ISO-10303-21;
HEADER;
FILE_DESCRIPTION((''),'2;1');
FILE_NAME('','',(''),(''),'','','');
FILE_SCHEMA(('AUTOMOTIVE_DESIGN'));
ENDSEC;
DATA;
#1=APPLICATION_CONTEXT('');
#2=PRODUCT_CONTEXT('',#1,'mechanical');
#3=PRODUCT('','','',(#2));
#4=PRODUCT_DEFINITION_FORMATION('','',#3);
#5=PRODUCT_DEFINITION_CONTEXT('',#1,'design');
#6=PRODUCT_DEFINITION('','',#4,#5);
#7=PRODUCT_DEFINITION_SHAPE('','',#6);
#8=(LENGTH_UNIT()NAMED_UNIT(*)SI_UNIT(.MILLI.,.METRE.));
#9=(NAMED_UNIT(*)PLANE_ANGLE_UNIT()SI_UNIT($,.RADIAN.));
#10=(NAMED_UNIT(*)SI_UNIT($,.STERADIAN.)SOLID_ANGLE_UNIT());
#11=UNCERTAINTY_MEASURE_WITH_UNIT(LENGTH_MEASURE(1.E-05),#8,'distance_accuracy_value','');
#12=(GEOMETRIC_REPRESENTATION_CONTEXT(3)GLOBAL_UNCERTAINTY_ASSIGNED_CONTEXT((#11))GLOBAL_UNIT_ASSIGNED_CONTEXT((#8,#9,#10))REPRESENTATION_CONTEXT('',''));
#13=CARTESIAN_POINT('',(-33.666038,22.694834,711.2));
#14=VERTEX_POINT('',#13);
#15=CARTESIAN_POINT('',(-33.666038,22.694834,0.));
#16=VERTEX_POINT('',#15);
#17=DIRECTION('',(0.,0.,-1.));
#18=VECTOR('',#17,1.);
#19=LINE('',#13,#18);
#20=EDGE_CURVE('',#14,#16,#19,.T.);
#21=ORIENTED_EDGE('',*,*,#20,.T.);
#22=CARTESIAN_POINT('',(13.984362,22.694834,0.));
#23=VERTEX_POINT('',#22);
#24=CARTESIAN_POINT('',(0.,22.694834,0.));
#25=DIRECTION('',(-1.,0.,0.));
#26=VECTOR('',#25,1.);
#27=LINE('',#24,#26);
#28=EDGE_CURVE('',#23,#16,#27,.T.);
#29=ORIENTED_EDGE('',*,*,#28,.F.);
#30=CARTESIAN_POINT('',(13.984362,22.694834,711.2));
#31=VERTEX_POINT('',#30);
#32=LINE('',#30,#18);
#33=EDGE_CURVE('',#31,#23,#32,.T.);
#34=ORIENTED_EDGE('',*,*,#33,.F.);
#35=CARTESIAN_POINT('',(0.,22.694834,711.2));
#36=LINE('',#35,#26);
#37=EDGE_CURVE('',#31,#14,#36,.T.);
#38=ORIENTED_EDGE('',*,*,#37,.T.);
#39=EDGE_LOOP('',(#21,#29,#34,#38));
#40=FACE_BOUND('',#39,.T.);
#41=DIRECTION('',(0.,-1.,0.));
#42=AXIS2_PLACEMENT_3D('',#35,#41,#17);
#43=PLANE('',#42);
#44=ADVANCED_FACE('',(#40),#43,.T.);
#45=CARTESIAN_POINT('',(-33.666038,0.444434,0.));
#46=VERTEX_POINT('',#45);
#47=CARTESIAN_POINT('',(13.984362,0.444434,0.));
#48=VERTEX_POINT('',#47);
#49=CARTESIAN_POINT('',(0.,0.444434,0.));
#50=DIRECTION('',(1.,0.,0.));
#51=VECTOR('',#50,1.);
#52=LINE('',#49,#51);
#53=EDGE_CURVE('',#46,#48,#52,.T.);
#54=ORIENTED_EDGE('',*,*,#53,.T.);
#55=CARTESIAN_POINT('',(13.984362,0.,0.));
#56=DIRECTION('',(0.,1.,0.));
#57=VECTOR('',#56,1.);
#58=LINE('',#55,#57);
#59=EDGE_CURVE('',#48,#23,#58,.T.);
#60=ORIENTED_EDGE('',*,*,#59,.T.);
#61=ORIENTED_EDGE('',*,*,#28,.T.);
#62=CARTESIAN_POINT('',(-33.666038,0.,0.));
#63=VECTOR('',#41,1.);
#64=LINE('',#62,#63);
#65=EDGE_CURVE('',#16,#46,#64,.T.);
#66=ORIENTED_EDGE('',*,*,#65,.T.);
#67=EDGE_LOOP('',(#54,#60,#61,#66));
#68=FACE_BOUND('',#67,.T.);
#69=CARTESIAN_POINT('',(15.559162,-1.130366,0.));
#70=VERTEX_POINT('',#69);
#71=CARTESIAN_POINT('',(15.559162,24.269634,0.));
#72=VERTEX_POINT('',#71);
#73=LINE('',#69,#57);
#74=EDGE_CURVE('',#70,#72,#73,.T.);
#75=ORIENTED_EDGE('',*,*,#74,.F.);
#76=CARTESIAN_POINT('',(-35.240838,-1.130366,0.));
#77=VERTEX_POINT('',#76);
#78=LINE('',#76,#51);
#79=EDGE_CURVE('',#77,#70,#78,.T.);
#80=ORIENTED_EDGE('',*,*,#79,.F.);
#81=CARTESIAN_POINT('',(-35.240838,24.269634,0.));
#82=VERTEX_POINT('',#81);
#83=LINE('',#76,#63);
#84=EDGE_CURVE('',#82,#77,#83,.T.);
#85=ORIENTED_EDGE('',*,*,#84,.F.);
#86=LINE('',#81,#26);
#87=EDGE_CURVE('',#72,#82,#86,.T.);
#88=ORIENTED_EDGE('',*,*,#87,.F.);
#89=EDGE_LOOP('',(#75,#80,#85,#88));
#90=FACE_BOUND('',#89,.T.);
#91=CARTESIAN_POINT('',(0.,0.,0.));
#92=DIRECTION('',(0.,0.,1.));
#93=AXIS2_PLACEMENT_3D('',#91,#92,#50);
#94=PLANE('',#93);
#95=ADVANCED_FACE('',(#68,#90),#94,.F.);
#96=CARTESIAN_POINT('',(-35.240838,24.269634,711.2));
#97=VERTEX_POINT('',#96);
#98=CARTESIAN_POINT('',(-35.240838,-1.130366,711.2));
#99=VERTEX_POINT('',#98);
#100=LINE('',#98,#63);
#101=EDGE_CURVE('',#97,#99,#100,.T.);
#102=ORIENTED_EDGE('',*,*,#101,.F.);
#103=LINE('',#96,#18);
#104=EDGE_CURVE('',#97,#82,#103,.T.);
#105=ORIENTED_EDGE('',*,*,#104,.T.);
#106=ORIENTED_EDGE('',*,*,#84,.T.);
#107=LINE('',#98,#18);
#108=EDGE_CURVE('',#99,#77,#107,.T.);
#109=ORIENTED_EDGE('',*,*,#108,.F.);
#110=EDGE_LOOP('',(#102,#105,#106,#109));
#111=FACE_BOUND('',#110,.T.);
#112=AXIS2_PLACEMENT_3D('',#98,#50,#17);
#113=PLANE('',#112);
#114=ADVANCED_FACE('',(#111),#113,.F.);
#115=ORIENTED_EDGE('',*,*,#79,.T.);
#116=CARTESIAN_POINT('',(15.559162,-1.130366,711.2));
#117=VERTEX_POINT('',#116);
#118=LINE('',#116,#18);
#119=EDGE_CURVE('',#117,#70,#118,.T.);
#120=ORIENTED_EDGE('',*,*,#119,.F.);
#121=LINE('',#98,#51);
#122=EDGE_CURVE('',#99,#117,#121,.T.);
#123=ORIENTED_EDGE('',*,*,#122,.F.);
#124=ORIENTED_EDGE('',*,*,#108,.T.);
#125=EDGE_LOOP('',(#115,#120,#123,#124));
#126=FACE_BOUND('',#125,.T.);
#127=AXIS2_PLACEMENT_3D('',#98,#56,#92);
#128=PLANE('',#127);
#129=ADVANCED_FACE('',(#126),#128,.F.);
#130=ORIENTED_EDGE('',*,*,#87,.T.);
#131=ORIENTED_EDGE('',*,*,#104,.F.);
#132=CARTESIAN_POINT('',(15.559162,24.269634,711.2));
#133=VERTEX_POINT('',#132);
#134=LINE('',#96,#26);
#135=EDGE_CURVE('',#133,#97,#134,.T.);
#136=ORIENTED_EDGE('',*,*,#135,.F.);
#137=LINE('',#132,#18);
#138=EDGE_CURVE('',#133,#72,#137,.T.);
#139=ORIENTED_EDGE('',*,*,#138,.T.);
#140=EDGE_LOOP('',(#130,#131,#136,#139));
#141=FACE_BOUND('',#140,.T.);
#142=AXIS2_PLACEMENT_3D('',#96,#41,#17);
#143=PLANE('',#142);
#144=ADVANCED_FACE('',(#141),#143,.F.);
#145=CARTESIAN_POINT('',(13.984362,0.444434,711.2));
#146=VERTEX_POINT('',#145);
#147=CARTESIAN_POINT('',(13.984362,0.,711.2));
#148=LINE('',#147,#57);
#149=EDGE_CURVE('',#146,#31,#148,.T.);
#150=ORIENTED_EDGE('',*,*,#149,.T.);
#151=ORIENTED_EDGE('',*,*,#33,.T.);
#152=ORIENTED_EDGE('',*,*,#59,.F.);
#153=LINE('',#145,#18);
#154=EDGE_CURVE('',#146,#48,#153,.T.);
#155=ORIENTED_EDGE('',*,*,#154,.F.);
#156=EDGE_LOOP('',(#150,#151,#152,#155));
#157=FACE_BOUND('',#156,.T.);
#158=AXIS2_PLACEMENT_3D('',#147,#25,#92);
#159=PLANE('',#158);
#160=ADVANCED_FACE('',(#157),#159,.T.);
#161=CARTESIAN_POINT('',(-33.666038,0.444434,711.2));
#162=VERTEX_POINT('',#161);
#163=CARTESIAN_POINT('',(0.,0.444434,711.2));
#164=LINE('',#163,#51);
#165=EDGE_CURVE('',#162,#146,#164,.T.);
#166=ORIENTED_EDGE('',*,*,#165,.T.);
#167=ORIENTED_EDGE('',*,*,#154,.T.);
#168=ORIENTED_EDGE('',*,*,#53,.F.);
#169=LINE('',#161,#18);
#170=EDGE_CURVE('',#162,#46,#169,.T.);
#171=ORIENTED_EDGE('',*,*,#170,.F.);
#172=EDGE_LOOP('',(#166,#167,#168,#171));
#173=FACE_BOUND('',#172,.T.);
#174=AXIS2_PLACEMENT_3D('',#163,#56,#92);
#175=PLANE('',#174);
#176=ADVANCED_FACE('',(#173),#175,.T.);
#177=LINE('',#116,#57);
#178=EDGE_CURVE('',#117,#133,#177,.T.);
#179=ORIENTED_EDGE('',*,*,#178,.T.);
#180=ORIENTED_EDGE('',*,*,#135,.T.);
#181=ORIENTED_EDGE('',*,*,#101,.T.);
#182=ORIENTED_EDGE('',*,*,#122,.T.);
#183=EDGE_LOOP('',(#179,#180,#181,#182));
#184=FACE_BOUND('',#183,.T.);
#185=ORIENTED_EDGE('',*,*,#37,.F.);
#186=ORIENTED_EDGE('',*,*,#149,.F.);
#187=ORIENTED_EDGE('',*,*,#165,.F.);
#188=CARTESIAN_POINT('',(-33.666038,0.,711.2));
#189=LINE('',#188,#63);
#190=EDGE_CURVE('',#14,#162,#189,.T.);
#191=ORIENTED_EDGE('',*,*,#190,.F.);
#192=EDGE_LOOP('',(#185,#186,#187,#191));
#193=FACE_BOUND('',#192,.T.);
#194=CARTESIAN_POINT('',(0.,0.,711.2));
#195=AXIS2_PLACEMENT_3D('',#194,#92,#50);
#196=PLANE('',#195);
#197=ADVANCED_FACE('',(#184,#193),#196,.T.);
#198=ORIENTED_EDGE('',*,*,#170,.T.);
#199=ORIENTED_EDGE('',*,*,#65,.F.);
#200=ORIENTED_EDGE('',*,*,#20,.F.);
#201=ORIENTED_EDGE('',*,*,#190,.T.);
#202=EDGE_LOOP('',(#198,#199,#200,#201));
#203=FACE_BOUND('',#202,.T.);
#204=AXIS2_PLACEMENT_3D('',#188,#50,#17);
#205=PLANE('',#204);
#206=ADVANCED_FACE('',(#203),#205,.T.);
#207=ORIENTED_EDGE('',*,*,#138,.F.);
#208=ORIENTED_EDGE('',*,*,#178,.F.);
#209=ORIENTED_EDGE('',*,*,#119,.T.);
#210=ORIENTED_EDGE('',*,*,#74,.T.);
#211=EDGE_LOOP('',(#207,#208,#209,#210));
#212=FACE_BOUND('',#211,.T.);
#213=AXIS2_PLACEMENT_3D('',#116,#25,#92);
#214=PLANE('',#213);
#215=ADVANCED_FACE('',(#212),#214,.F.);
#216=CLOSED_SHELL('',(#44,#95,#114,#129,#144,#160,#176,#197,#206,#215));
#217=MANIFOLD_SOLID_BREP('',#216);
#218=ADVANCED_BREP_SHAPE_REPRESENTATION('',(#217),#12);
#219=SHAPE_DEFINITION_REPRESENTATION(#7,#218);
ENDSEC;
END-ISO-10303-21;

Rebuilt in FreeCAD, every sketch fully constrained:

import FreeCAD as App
import Part
import Sketcher
Q = App.Units.Quantity


def add_polygon(sketch, points):
    """Adds a closed chain of lines whose ends are joined by coincident constraints."""
    first, n = sketch.GeometryCount, len(points)
    for a, b in zip(points, points[1:] + points[:1]):
        sketch.addGeometry(Part.LineSegment(App.Vector(*a, 0), App.Vector(*b, 0)), False)
    for i in range(n):
        sketch.addConstraint(Sketcher.Constraint("Coincident", first + i, 2, first + (i + 1) % n, 1))

doc = App.newDocument("Part")
params = doc.addObject("Spreadsheet::Sheet", "Params")
for row, (alias, value) in enumerate([
    ("sketch1_width", "2 in"),
    ("sketch1_height", "1 in"),
    ("sketch1_width2", "1.876 in"),
    ("sketch1_height2", "0.876 in"),
    ("pad1_length", "28 in"),
], start=1):
    params.set(f"A{row}", alias)
    params.set(f"B{row}", "=" + value)
    params.setAlias(f"B{row}", alias)

body = doc.addObject("PartDesign::Body", "Body")

sketch1 = body.newObject("Sketcher::SketchObject", "Sketch")
sketch1.AttachmentSupport = (doc.getObject("XY_Plane"), [""])
sketch1.MapMode = "FlatFace"
add_polygon(sketch1, [(-35, 24), (-35, -1), (16, -1), (16, 24)])
add_polygon(sketch1, [(14, 0), (-34, 0), (-34, 23), (14, 23)])
sketch1.addConstraint([
    Sketcher.Constraint("Vertical", 0),
    Sketcher.Constraint("Horizontal", 1),
    Sketcher.Constraint("Vertical", 2),
    Sketcher.Constraint("Horizontal", 3),
    Sketcher.Constraint("Horizontal", 4),
    Sketcher.Constraint("Vertical", 5),
    Sketcher.Constraint("Horizontal", 6),
    Sketcher.Constraint("Vertical", 7),
    Sketcher.Constraint("DistanceX", 1, 1, 1, 2, Q("2 in")),
    Sketcher.Constraint("DistanceY", 0, 2, 0, 1, Q("1 in")),
    Sketcher.Constraint("DistanceX", 4, 2, 4, 1, Q("1.876 in")),
    Sketcher.Constraint("DistanceY", 5, 1, 5, 2, Q("0.876 in")),
    Sketcher.Constraint("DistanceX", 0, 2, 4, 2, Q("0.062 in")),
    Sketcher.Constraint("DistanceY", 0, 2, 4, 2, Q("0.062 in")),
    Sketcher.Constraint("DistanceX", 0, 2, -1, 1, Q("35.240838 mm")),
    Sketcher.Constraint("DistanceY", 0, 2, -1, 1, Q("1.130366 mm")),
])
sketch1.setExpression("Constraints[16]", "Params.sketch1_width")
sketch1.setExpression("Constraints[17]", "Params.sketch1_height")
sketch1.setExpression("Constraints[18]", "Params.sketch1_width2")
sketch1.setExpression("Constraints[19]", "Params.sketch1_height2")
pad1 = body.newObject("PartDesign::Pad", "Pad")
pad1.Profile = sketch1
pad1.setExpression("Length", "Params.pad1_length")

doc.recompute()
